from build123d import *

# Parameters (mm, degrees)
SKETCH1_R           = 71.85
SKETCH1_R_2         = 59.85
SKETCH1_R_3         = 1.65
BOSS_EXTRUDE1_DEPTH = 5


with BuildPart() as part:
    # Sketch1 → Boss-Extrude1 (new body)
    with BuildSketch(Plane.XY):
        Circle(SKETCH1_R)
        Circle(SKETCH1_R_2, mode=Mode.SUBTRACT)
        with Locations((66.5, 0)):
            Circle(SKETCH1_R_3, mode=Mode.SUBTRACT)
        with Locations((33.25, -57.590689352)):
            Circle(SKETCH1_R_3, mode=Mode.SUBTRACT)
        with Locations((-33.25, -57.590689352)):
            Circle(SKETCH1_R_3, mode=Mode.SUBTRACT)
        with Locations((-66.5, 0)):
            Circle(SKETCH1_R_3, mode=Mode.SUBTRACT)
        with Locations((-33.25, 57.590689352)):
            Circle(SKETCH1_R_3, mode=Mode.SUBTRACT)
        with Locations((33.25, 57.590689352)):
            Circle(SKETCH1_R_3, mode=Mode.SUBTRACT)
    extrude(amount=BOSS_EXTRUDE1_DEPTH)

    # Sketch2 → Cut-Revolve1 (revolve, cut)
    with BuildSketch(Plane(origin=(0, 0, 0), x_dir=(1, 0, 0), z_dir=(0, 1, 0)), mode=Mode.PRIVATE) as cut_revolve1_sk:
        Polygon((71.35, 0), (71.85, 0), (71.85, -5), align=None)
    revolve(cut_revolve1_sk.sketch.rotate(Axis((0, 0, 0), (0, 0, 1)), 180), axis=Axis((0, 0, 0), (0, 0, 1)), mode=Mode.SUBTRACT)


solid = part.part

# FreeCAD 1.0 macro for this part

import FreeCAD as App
import Part
import Sketcher

V = App.Vector


def add_polygon(sketch, points):
    """Adds a closed chain of lines whose ends are joined by coincident constraints."""
    first, n = sketch.GeometryCount, len(points)
    for a, b in zip(points, points[1:] + points[:1]):
        sketch.addGeometry(Part.LineSegment(App.Vector(*a, 0), App.Vector(*b, 0)), False)
    for i in range(n):
        sketch.addConstraint(Sketcher.Constraint("Coincident", first + i, 2, first + (i + 1) % n, 1))

doc = App.newDocument("Part")
body = doc.addObject("PartDesign::Body", "Body")

# Sketch on XY plane
sketch1 = body.newObject("Sketcher::SketchObject", "Sketch")
sketch1.AttachmentSupport = (doc.getObject("XY_Plane"), [""])
sketch1.MapMode = "FlatFace"
sketch1.addGeometry([
    Part.Circle(V(0, 0, 0), V(0, 0, 1), 71.8),  # 0
    Part.Circle(V(-33.2, -57.6, 0), V(0, 0, 1), 1.6),  # 1
    Part.Circle(V(33.2, -57.6, 0), V(0, 0, 1), 1.6),  # 2
    Part.Circle(V(-66.5, 0, 0), V(0, 0, 1), 1.6),  # 3
    Part.Circle(V(-33.2, 57.6, 0), V(0, 0, 1), 1.6),  # 4
    Part.Circle(V(0, 0, 0), V(0, 0, 1), 59.9),  # 5
    Part.Circle(V(66.5, 0, 0), V(0, 0, 1), 1.6),  # 6
    Part.Circle(V(33.2, 57.6, 0), V(0, 0, 1), 1.6),  # 7
], False)
sketch1.addConstraint([
    Sketcher.Constraint("Coincident", 0, 3, -1, 1),
    Sketcher.Constraint("Coincident", 5, 3, -1, 1),
    Sketcher.Constraint("Equal", 1, 2),
    Sketcher.Constraint("Equal", 2, 3),
    Sketcher.Constraint("Equal", 3, 4),
    Sketcher.Constraint("Equal", 4, 6),
    Sketcher.Constraint("Equal", 6, 7),
    Sketcher.Constraint("Symmetric", 2, 3, 4, 3, -1, 1),
    Sketcher.Constraint("Symmetric", 3, 3, 6, 3, -1, 1),
    Sketcher.Constraint("Symmetric", 1, 3, 7, 3, -1, 1),
    Sketcher.Constraint("Symmetric", 1, 3, 2, 3, -2),
    Sketcher.Constraint("PointOnObject", 3, 3, -1),
    Sketcher.Constraint("Diameter", 0, 143.7),
    Sketcher.Constraint("Diameter", 1, 3.3),
    Sketcher.Constraint("Diameter", 5, 119.7),
    Sketcher.Constraint("DistanceX", 3, 3, -1, 1, 66.5),
    Sketcher.Constraint("DistanceX", 1, 3, 2, 3, 66.5),
    Sketcher.Constraint("DistanceY", 1, 3, -1, 1, 57.590689),
])
pad1 = body.newObject("PartDesign::Pad", "Pad")
pad1.Profile = sketch1
pad1.Length = 5

# Sketch on XZ plane
sketch2 = body.newObject("Sketcher::SketchObject", "Sketch001")
sketch2.AttachmentSupport = (doc.getObject("XZ_Plane"), [""])
sketch2.MapMode = "FlatFace"
add_polygon(sketch2, [(71.8, 0), (71.3, 0), (71.8, 5)])  # lines 0-2
sketch2.addConstraint([
    Sketcher.Constraint("Horizontal", 0),
    Sketcher.Constraint("Vertical", 2),
    Sketcher.Constraint("PointOnObject", 0, 2, -1),
    Sketcher.Constraint("DistanceY", 2, 2, 2, 1, 5.0),
    Sketcher.Constraint("DistanceX", 0, 2, 0, 1, 0.5),
    Sketcher.Constraint("DistanceX", -1, 1, 0, 2, 71.35),
])
groove = body.newObject("PartDesign::Groove", "Groove")
groove.Profile = sketch2
groove.ReferenceAxis = (sketch2, ["V_Axis"])
groove.Angle = 360

doc.recompute()
